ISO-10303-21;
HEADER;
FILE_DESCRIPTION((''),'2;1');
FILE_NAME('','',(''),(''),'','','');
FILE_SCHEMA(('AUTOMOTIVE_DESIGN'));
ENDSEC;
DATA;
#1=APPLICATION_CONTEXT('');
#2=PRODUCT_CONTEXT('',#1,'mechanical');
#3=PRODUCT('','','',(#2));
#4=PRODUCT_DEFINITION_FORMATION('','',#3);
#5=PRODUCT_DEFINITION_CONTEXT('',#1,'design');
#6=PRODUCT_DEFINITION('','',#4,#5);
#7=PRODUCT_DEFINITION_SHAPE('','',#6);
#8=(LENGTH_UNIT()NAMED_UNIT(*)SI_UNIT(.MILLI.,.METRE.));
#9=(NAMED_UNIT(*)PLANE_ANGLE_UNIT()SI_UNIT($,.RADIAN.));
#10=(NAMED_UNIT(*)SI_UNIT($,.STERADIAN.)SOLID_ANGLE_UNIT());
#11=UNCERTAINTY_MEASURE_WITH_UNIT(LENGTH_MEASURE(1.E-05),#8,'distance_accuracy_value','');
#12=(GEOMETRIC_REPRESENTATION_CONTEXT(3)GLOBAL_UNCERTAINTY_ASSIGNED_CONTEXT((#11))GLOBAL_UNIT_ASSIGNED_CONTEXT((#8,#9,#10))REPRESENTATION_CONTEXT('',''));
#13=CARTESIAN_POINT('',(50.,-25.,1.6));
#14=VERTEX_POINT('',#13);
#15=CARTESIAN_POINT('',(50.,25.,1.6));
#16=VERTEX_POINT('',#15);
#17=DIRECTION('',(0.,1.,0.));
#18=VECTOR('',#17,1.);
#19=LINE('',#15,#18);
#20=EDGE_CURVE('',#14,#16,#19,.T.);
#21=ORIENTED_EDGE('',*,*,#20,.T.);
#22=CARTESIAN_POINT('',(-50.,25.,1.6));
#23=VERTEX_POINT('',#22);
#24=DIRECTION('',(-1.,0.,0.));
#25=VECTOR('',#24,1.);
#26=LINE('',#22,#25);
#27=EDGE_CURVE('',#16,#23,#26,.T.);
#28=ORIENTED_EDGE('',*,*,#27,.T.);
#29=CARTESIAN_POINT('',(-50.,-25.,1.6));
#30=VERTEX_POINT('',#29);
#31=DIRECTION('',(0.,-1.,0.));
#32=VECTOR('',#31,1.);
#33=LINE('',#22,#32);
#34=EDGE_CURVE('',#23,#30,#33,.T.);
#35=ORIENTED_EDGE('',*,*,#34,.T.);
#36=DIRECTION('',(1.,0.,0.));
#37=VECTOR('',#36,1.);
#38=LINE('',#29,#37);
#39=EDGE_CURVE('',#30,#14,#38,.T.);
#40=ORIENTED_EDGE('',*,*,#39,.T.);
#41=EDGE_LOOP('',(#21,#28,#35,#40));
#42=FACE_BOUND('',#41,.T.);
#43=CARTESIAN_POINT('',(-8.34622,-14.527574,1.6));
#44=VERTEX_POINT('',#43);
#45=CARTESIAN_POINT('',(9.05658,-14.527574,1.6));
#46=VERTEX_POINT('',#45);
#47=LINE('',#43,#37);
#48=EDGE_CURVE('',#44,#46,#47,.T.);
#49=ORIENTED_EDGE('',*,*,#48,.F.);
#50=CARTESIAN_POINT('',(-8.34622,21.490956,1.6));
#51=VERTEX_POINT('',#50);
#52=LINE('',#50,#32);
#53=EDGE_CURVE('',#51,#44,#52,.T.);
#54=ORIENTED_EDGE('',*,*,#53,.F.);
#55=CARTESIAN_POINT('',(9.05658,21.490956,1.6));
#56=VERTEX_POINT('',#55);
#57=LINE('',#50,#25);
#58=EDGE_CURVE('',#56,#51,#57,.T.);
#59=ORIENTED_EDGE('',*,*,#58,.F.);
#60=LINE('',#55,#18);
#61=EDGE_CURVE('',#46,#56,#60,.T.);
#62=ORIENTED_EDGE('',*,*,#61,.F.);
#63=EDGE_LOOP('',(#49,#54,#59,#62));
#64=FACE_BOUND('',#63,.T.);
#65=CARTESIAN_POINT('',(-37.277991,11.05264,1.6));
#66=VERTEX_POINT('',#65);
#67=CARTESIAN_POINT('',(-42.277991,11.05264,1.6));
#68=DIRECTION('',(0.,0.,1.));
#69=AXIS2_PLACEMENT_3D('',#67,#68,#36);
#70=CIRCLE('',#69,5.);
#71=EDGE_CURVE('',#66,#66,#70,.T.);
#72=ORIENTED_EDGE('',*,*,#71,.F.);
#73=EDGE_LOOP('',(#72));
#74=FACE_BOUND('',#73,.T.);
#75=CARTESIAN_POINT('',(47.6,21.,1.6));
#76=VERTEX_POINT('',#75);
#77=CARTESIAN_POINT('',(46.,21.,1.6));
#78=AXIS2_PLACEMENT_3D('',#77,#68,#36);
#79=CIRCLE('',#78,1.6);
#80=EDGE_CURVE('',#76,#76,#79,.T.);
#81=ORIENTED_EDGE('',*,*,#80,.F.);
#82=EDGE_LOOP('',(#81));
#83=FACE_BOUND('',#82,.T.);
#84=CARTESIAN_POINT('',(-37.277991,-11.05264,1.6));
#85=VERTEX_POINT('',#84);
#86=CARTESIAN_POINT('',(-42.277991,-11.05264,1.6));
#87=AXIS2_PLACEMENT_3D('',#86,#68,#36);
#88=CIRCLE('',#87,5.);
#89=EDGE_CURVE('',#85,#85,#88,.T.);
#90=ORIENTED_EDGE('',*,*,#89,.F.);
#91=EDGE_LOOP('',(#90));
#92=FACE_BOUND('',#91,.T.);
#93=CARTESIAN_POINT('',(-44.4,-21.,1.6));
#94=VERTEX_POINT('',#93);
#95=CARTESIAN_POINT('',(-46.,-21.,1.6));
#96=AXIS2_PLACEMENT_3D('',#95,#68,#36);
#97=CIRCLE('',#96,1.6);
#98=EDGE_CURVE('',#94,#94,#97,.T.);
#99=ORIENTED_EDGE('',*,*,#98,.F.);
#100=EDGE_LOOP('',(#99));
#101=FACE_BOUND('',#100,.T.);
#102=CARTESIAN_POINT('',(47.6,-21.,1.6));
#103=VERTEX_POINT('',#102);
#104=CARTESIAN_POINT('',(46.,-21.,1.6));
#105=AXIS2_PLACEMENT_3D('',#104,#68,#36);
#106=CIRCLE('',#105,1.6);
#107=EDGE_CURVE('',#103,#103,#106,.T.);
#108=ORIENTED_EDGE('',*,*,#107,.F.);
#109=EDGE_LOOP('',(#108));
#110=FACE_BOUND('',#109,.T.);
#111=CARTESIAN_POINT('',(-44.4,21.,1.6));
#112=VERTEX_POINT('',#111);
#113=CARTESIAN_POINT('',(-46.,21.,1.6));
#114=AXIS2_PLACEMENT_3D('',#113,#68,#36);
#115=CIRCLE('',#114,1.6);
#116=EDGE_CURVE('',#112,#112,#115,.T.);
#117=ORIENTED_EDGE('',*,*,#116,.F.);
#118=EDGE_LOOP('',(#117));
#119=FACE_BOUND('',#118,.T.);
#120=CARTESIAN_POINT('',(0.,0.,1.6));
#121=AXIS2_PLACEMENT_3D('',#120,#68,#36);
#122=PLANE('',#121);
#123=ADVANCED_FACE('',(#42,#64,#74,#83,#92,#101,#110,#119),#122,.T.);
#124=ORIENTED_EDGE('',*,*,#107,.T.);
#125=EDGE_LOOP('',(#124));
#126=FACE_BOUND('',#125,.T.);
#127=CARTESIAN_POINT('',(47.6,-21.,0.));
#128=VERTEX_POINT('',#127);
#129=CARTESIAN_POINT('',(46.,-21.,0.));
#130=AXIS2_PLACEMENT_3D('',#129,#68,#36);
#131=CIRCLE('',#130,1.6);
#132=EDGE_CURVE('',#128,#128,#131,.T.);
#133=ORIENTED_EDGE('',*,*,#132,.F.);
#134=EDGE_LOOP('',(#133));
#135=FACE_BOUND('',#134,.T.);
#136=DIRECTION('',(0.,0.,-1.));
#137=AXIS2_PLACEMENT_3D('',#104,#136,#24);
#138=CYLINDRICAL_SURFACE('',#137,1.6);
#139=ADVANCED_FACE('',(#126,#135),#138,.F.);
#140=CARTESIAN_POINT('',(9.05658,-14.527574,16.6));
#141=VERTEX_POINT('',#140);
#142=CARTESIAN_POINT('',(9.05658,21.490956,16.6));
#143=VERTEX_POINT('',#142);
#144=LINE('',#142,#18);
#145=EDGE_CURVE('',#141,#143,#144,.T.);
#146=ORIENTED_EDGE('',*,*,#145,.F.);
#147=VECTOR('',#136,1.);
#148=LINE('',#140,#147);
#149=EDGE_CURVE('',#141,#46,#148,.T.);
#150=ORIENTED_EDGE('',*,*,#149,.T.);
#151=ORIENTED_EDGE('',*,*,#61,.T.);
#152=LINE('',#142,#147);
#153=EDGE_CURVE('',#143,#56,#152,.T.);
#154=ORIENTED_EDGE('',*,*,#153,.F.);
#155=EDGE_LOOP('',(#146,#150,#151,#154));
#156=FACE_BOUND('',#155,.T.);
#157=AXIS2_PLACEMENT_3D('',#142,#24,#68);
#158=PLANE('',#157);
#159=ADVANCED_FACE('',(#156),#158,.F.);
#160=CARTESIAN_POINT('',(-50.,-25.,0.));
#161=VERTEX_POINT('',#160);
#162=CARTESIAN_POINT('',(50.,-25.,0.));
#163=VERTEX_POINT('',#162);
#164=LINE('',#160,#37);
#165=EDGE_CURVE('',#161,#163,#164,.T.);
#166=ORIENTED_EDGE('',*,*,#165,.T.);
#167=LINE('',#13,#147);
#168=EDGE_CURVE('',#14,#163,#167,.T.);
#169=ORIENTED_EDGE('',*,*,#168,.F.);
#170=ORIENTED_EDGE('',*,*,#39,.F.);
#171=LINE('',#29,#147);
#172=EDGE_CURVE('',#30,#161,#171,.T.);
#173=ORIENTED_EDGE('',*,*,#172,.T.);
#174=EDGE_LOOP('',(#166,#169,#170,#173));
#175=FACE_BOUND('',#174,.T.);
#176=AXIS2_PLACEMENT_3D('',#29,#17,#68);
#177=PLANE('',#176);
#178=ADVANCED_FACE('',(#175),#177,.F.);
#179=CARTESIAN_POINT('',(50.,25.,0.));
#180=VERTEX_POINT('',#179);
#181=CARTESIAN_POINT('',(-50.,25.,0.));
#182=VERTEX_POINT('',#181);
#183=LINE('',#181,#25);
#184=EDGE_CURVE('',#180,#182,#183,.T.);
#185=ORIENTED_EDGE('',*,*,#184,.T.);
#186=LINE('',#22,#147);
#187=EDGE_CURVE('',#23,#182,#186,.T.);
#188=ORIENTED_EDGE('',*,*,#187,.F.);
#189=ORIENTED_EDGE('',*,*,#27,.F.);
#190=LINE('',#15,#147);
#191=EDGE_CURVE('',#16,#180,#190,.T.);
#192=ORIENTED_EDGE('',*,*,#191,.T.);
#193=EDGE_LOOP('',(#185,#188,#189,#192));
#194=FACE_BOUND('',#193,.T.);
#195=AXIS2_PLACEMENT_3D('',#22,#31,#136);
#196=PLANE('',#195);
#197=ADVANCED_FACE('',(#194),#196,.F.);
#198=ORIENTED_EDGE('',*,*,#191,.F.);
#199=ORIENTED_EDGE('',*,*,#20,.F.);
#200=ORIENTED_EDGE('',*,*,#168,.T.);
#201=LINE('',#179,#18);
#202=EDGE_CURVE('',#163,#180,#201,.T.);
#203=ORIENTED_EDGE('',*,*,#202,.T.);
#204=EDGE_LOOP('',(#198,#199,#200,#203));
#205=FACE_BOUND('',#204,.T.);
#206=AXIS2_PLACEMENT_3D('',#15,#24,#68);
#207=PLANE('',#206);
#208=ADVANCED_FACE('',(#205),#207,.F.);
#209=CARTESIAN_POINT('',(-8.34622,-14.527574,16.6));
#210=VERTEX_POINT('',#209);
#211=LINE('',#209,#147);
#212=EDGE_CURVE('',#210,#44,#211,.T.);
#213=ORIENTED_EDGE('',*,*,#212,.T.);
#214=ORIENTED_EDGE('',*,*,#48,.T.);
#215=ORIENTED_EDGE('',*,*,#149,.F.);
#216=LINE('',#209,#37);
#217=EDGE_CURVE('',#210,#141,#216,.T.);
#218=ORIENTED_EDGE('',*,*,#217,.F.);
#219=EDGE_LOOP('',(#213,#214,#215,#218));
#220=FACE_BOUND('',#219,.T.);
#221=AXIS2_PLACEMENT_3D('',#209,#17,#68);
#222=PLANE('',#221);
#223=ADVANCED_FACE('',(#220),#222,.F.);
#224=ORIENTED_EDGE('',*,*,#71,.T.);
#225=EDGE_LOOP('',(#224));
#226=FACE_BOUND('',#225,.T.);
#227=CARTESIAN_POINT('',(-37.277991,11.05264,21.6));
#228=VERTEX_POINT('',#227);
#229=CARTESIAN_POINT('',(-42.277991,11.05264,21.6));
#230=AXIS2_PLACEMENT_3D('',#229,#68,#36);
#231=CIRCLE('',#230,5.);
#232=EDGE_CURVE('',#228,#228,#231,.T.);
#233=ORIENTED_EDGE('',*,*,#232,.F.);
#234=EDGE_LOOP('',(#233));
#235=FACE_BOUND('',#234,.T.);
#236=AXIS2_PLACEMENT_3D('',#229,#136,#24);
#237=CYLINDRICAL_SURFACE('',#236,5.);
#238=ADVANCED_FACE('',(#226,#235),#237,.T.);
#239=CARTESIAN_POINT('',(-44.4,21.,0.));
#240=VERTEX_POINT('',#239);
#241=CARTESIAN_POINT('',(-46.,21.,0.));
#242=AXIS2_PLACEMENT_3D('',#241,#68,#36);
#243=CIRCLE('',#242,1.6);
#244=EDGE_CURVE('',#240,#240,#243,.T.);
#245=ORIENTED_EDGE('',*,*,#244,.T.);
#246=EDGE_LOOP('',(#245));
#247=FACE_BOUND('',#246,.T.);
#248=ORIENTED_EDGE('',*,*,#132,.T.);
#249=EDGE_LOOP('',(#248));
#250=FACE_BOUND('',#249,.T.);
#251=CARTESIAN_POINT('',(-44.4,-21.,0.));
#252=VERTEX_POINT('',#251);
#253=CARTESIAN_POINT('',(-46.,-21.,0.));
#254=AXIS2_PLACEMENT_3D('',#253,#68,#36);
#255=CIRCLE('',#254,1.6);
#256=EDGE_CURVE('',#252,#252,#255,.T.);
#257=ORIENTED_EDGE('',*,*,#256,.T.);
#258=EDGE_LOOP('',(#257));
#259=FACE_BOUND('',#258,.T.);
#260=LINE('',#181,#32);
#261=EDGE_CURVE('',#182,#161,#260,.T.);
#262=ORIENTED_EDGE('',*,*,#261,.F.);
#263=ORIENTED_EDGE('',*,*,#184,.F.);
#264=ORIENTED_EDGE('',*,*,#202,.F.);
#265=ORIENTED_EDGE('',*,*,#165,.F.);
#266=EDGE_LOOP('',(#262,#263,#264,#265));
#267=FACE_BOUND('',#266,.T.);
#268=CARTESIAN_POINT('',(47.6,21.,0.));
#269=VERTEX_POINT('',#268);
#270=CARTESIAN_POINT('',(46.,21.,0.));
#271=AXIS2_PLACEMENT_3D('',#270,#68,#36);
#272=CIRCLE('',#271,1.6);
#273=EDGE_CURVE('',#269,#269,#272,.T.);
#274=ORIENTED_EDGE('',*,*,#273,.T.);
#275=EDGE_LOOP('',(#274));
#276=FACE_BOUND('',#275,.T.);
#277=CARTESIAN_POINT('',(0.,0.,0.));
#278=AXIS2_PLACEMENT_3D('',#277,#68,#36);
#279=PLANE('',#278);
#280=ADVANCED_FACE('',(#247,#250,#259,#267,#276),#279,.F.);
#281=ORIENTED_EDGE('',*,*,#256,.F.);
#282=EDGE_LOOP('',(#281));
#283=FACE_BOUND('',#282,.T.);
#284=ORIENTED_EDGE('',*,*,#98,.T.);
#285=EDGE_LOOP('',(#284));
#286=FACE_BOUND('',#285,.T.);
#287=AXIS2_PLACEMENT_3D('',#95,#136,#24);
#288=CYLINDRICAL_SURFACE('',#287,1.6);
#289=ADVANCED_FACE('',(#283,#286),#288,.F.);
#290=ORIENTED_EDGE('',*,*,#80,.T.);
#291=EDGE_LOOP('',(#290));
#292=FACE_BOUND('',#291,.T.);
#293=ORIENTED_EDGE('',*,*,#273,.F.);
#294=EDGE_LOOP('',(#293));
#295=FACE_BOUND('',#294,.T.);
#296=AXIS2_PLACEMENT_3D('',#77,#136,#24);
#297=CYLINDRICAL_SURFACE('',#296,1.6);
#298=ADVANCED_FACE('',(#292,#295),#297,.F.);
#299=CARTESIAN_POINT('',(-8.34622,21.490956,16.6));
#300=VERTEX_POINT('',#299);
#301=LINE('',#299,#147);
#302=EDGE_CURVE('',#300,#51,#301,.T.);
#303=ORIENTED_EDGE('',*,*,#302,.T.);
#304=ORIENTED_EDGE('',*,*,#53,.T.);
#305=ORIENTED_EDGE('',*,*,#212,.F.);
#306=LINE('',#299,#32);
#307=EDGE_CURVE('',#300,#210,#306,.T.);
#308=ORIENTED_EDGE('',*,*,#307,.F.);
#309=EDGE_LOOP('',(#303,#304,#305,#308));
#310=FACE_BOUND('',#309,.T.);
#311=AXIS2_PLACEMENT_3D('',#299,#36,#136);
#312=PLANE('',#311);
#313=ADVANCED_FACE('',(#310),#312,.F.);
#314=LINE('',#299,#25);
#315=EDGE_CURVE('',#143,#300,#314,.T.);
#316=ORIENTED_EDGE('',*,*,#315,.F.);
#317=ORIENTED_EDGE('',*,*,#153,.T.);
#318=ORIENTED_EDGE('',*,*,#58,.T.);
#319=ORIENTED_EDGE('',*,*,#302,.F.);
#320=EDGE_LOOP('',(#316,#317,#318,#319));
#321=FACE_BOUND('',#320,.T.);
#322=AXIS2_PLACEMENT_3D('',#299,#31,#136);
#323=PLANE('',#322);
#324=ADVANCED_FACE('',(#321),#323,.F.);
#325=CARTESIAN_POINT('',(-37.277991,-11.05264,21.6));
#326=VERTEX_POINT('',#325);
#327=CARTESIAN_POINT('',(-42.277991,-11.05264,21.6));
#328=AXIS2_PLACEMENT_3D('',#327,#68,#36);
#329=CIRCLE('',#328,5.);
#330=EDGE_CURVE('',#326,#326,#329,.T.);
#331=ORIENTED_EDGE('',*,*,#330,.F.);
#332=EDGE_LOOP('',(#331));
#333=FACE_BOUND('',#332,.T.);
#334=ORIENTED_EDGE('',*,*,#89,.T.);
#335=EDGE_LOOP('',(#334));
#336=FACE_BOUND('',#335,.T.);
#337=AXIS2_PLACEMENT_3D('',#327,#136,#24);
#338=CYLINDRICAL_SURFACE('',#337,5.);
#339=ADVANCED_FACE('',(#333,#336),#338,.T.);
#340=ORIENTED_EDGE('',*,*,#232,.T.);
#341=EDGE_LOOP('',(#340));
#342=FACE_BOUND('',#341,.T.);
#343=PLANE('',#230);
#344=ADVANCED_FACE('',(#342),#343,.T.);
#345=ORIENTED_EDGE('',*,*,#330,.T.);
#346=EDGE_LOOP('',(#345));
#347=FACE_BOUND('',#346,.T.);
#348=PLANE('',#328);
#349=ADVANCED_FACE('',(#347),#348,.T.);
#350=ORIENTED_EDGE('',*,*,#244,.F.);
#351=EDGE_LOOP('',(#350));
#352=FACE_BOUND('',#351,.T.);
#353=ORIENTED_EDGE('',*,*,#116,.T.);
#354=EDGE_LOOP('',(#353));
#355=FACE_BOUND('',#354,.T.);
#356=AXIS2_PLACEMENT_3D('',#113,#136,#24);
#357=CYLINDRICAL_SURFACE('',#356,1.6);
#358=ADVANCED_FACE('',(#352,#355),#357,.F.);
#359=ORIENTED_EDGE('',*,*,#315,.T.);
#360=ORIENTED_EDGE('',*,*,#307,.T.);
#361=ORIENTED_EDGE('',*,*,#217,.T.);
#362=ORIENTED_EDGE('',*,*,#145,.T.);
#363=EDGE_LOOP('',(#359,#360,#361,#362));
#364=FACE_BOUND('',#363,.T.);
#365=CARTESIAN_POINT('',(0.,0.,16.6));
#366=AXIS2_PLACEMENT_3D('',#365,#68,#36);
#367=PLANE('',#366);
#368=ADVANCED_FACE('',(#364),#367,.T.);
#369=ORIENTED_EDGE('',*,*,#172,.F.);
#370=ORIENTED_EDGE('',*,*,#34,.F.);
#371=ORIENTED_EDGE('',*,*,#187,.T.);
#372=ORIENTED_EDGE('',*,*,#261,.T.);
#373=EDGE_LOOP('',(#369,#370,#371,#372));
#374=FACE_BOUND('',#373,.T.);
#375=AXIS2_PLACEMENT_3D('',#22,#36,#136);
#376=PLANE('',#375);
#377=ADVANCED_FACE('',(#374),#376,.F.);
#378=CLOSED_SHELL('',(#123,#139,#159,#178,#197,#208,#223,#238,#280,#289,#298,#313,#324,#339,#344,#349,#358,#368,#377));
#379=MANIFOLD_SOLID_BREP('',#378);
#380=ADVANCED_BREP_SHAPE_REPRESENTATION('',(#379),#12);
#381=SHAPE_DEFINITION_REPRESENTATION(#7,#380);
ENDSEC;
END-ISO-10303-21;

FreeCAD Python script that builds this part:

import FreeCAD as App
import Part
import Sketcher

V = App.Vector

doc = App.newDocument("Part")
body = doc.addObject("PartDesign::Body", "Body")

sketch1 = doc.addObject("Sketcher::SketchObject", "Sketch")
body.addObject(sketch1)
sketch1.AttachmentSupport = (doc.XY_Plane, [""])
sketch1.MapMode = "FlatFace"
sketch1.addGeometry(Part.LineSegment(V(-50, 25, 0), V(-50, -25, 0)), False)
sketch1.addGeometry(Part.LineSegment(V(-50, -25, 0), V(50, -25, 0)), False)
sketch1.addGeometry(Part.LineSegment(V(50, -25, 0), V(50, 25, 0)), False)
sketch1.addGeometry(Part.LineSegment(V(50, 25, 0), V(-50, 25, 0)), False)
sketch1.addGeometry(Part.Circle(V(-46, -21, 0), V(0, 0, 1), 1.6), False)
sketch1.addGeometry(Part.Circle(V(46, -21, 0), V(0, 0, 1), 1.6), False)
sketch1.addGeometry(Part.Circle(V(-46, 21, 0), V(0, 0, 1), 1.6), False)
sketch1.addGeometry(Part.Circle(V(46, 21, 0), V(0, 0, 1), 1.6), False)
sketch1.addConstraint(Sketcher.Constraint("Coincident", 0, 2, 1, 1))
sketch1.addConstraint(Sketcher.Constraint("Coincident", 1, 2, 2, 1))
sketch1.addConstraint(Sketcher.Constraint("Coincident", 2, 2, 3, 1))
sketch1.addConstraint(Sketcher.Constraint("Coincident", 3, 2, 0, 1))
sketch1.addConstraint(Sketcher.Constraint("Vertical", 0))
sketch1.addConstraint(Sketcher.Constraint("Horizontal", 1))
sketch1.addConstraint(Sketcher.Constraint("Vertical", 2))
sketch1.addConstraint(Sketcher.Constraint("Horizontal", 3))
sketch1.addConstraint(Sketcher.Constraint("Equal", 4, 5))
sketch1.addConstraint(Sketcher.Constraint("Equal", 5, 6))
sketch1.addConstraint(Sketcher.Constraint("Equal", 6, 7))
sketch1.addConstraint(Sketcher.Constraint("Symmetric", 5, 3, 6, 3, -1, 1))
sketch1.addConstraint(Sketcher.Constraint("Symmetric", 4, 3, 7, 3, -1, 1))
sketch1.addConstraint(Sketcher.Constraint("Symmetric", 0, 2, 2, 2, -1, 1))
sketch1.addConstraint(Sketcher.Constraint("Symmetric", 4, 3, 5, 3, -2))
sketch1.addConstraint(Sketcher.Constraint("Diameter", 4, 3.2))
sketch1.addConstraint(Sketcher.Constraint("DistanceX", 1, 1, 1, 2, 100.0))
sketch1.addConstraint(Sketcher.Constraint("DistanceY", 0, 2, 0, 1, 50.0))
sketch1.addConstraint(Sketcher.Constraint("DistanceX", 4, 3, -1, 1, 46.0))
sketch1.addConstraint(Sketcher.Constraint("DistanceY", 4, 3, -1, 1, 21.0))
pad1 = doc.addObject("PartDesign::Pad", "Pad")
body.addObject(pad1)
pad1.Profile = sketch1
pad1.Length = 1.6

sketch2 = doc.addObject("Sketcher::SketchObject", "Sketch001")
body.addObject(sketch2)
sketch2.AttachmentSupport = (doc.XY_Plane, [""])
sketch2.MapMode = "FlatFace"
sketch2.AttachmentOffset = App.Placement(V(0, 0, 1.6), App.Rotation())
sketch2.addGeometry(Part.Circle(V(-42, 11, 0), V(0, 0, 1), 5), False)
sketch2.addGeometry(Part.Circle(V(-42, -11, 0), V(0, 0, 1), 5), False)
sketch2.addConstraint(Sketcher.Constraint("Equal", 0, 1))
sketch2.addConstraint(Sketcher.Constraint("Symmetric", 0, 3, 1, 3, -1))
sketch2.addConstraint(Sketcher.Constraint("Diameter", 0, 10.0))
sketch2.addConstraint(Sketcher.Constraint("DistanceX", 0, 3, -1, 1, 42.277991))
sketch2.addConstraint(Sketcher.Constraint("DistanceY", -1, 1, 0, 3, 11.05264))
pad2 = doc.addObject("PartDesign::Pad", "Pad001")
body.addObject(pad2)
pad2.Profile = sketch2
pad2.Length = 20

sketch3 = doc.addObject("Sketcher::SketchObject", "Sketch002")
body.addObject(sketch3)
sketch3.AttachmentSupport = (doc.XY_Plane, [""])
sketch3.MapMode = "FlatFace"
sketch3.AttachmentOffset = App.Placement(V(0, 0, 1.6), App.Rotation())
sketch3.addGeometry(Part.LineSegment(V(-8, 21, 0), V(-8, -15, 0)), False)
sketch3.addGeometry(Part.LineSegment(V(-8, -15, 0), V(9, -15, 0)), False)
sketch3.addGeometry(Part.LineSegment(V(9, -15, 0), V(9, 21, 0)), False)
sketch3.addGeometry(Part.LineSegment(V(9, 21, 0), V(-8, 21, 0)), False)
sketch3.addConstraint(Sketcher.Constraint("Coincident", 0, 2, 1, 1))
sketch3.addConstraint(Sketcher.Constraint("Coincident", 1, 2, 2, 1))
sketch3.addConstraint(Sketcher.Constraint("Coincident", 2, 2, 3, 1))
sketch3.addConstraint(Sketcher.Constraint("Coincident", 3, 2, 0, 1))
sketch3.addConstraint(Sketcher.Constraint("Vertical", 0))
sketch3.addConstraint(Sketcher.Constraint("Horizontal", 1))
sketch3.addConstraint(Sketcher.Constraint("Vertical", 2))
sketch3.addConstraint(Sketcher.Constraint("Horizontal", 3))
sketch3.addConstraint(Sketcher.Constraint("DistanceX", 1, 1, 1, 2, 17.4028))
sketch3.addConstraint(Sketcher.Constraint("DistanceY", 0, 2, 0, 1, 36.01853))
sketch3.addConstraint(Sketcher.Constraint("DistanceX", 0, 2, -1, 1, 8.34622))
sketch3.addConstraint(Sketcher.Constraint("DistanceY", 0, 2, -1, 1, 14.527574))
pad3 = doc.addObject("PartDesign::Pad", "Pad002")
body.addObject(pad3)
pad3.Profile = sketch3
pad3.Length = 15

doc.recompute()
